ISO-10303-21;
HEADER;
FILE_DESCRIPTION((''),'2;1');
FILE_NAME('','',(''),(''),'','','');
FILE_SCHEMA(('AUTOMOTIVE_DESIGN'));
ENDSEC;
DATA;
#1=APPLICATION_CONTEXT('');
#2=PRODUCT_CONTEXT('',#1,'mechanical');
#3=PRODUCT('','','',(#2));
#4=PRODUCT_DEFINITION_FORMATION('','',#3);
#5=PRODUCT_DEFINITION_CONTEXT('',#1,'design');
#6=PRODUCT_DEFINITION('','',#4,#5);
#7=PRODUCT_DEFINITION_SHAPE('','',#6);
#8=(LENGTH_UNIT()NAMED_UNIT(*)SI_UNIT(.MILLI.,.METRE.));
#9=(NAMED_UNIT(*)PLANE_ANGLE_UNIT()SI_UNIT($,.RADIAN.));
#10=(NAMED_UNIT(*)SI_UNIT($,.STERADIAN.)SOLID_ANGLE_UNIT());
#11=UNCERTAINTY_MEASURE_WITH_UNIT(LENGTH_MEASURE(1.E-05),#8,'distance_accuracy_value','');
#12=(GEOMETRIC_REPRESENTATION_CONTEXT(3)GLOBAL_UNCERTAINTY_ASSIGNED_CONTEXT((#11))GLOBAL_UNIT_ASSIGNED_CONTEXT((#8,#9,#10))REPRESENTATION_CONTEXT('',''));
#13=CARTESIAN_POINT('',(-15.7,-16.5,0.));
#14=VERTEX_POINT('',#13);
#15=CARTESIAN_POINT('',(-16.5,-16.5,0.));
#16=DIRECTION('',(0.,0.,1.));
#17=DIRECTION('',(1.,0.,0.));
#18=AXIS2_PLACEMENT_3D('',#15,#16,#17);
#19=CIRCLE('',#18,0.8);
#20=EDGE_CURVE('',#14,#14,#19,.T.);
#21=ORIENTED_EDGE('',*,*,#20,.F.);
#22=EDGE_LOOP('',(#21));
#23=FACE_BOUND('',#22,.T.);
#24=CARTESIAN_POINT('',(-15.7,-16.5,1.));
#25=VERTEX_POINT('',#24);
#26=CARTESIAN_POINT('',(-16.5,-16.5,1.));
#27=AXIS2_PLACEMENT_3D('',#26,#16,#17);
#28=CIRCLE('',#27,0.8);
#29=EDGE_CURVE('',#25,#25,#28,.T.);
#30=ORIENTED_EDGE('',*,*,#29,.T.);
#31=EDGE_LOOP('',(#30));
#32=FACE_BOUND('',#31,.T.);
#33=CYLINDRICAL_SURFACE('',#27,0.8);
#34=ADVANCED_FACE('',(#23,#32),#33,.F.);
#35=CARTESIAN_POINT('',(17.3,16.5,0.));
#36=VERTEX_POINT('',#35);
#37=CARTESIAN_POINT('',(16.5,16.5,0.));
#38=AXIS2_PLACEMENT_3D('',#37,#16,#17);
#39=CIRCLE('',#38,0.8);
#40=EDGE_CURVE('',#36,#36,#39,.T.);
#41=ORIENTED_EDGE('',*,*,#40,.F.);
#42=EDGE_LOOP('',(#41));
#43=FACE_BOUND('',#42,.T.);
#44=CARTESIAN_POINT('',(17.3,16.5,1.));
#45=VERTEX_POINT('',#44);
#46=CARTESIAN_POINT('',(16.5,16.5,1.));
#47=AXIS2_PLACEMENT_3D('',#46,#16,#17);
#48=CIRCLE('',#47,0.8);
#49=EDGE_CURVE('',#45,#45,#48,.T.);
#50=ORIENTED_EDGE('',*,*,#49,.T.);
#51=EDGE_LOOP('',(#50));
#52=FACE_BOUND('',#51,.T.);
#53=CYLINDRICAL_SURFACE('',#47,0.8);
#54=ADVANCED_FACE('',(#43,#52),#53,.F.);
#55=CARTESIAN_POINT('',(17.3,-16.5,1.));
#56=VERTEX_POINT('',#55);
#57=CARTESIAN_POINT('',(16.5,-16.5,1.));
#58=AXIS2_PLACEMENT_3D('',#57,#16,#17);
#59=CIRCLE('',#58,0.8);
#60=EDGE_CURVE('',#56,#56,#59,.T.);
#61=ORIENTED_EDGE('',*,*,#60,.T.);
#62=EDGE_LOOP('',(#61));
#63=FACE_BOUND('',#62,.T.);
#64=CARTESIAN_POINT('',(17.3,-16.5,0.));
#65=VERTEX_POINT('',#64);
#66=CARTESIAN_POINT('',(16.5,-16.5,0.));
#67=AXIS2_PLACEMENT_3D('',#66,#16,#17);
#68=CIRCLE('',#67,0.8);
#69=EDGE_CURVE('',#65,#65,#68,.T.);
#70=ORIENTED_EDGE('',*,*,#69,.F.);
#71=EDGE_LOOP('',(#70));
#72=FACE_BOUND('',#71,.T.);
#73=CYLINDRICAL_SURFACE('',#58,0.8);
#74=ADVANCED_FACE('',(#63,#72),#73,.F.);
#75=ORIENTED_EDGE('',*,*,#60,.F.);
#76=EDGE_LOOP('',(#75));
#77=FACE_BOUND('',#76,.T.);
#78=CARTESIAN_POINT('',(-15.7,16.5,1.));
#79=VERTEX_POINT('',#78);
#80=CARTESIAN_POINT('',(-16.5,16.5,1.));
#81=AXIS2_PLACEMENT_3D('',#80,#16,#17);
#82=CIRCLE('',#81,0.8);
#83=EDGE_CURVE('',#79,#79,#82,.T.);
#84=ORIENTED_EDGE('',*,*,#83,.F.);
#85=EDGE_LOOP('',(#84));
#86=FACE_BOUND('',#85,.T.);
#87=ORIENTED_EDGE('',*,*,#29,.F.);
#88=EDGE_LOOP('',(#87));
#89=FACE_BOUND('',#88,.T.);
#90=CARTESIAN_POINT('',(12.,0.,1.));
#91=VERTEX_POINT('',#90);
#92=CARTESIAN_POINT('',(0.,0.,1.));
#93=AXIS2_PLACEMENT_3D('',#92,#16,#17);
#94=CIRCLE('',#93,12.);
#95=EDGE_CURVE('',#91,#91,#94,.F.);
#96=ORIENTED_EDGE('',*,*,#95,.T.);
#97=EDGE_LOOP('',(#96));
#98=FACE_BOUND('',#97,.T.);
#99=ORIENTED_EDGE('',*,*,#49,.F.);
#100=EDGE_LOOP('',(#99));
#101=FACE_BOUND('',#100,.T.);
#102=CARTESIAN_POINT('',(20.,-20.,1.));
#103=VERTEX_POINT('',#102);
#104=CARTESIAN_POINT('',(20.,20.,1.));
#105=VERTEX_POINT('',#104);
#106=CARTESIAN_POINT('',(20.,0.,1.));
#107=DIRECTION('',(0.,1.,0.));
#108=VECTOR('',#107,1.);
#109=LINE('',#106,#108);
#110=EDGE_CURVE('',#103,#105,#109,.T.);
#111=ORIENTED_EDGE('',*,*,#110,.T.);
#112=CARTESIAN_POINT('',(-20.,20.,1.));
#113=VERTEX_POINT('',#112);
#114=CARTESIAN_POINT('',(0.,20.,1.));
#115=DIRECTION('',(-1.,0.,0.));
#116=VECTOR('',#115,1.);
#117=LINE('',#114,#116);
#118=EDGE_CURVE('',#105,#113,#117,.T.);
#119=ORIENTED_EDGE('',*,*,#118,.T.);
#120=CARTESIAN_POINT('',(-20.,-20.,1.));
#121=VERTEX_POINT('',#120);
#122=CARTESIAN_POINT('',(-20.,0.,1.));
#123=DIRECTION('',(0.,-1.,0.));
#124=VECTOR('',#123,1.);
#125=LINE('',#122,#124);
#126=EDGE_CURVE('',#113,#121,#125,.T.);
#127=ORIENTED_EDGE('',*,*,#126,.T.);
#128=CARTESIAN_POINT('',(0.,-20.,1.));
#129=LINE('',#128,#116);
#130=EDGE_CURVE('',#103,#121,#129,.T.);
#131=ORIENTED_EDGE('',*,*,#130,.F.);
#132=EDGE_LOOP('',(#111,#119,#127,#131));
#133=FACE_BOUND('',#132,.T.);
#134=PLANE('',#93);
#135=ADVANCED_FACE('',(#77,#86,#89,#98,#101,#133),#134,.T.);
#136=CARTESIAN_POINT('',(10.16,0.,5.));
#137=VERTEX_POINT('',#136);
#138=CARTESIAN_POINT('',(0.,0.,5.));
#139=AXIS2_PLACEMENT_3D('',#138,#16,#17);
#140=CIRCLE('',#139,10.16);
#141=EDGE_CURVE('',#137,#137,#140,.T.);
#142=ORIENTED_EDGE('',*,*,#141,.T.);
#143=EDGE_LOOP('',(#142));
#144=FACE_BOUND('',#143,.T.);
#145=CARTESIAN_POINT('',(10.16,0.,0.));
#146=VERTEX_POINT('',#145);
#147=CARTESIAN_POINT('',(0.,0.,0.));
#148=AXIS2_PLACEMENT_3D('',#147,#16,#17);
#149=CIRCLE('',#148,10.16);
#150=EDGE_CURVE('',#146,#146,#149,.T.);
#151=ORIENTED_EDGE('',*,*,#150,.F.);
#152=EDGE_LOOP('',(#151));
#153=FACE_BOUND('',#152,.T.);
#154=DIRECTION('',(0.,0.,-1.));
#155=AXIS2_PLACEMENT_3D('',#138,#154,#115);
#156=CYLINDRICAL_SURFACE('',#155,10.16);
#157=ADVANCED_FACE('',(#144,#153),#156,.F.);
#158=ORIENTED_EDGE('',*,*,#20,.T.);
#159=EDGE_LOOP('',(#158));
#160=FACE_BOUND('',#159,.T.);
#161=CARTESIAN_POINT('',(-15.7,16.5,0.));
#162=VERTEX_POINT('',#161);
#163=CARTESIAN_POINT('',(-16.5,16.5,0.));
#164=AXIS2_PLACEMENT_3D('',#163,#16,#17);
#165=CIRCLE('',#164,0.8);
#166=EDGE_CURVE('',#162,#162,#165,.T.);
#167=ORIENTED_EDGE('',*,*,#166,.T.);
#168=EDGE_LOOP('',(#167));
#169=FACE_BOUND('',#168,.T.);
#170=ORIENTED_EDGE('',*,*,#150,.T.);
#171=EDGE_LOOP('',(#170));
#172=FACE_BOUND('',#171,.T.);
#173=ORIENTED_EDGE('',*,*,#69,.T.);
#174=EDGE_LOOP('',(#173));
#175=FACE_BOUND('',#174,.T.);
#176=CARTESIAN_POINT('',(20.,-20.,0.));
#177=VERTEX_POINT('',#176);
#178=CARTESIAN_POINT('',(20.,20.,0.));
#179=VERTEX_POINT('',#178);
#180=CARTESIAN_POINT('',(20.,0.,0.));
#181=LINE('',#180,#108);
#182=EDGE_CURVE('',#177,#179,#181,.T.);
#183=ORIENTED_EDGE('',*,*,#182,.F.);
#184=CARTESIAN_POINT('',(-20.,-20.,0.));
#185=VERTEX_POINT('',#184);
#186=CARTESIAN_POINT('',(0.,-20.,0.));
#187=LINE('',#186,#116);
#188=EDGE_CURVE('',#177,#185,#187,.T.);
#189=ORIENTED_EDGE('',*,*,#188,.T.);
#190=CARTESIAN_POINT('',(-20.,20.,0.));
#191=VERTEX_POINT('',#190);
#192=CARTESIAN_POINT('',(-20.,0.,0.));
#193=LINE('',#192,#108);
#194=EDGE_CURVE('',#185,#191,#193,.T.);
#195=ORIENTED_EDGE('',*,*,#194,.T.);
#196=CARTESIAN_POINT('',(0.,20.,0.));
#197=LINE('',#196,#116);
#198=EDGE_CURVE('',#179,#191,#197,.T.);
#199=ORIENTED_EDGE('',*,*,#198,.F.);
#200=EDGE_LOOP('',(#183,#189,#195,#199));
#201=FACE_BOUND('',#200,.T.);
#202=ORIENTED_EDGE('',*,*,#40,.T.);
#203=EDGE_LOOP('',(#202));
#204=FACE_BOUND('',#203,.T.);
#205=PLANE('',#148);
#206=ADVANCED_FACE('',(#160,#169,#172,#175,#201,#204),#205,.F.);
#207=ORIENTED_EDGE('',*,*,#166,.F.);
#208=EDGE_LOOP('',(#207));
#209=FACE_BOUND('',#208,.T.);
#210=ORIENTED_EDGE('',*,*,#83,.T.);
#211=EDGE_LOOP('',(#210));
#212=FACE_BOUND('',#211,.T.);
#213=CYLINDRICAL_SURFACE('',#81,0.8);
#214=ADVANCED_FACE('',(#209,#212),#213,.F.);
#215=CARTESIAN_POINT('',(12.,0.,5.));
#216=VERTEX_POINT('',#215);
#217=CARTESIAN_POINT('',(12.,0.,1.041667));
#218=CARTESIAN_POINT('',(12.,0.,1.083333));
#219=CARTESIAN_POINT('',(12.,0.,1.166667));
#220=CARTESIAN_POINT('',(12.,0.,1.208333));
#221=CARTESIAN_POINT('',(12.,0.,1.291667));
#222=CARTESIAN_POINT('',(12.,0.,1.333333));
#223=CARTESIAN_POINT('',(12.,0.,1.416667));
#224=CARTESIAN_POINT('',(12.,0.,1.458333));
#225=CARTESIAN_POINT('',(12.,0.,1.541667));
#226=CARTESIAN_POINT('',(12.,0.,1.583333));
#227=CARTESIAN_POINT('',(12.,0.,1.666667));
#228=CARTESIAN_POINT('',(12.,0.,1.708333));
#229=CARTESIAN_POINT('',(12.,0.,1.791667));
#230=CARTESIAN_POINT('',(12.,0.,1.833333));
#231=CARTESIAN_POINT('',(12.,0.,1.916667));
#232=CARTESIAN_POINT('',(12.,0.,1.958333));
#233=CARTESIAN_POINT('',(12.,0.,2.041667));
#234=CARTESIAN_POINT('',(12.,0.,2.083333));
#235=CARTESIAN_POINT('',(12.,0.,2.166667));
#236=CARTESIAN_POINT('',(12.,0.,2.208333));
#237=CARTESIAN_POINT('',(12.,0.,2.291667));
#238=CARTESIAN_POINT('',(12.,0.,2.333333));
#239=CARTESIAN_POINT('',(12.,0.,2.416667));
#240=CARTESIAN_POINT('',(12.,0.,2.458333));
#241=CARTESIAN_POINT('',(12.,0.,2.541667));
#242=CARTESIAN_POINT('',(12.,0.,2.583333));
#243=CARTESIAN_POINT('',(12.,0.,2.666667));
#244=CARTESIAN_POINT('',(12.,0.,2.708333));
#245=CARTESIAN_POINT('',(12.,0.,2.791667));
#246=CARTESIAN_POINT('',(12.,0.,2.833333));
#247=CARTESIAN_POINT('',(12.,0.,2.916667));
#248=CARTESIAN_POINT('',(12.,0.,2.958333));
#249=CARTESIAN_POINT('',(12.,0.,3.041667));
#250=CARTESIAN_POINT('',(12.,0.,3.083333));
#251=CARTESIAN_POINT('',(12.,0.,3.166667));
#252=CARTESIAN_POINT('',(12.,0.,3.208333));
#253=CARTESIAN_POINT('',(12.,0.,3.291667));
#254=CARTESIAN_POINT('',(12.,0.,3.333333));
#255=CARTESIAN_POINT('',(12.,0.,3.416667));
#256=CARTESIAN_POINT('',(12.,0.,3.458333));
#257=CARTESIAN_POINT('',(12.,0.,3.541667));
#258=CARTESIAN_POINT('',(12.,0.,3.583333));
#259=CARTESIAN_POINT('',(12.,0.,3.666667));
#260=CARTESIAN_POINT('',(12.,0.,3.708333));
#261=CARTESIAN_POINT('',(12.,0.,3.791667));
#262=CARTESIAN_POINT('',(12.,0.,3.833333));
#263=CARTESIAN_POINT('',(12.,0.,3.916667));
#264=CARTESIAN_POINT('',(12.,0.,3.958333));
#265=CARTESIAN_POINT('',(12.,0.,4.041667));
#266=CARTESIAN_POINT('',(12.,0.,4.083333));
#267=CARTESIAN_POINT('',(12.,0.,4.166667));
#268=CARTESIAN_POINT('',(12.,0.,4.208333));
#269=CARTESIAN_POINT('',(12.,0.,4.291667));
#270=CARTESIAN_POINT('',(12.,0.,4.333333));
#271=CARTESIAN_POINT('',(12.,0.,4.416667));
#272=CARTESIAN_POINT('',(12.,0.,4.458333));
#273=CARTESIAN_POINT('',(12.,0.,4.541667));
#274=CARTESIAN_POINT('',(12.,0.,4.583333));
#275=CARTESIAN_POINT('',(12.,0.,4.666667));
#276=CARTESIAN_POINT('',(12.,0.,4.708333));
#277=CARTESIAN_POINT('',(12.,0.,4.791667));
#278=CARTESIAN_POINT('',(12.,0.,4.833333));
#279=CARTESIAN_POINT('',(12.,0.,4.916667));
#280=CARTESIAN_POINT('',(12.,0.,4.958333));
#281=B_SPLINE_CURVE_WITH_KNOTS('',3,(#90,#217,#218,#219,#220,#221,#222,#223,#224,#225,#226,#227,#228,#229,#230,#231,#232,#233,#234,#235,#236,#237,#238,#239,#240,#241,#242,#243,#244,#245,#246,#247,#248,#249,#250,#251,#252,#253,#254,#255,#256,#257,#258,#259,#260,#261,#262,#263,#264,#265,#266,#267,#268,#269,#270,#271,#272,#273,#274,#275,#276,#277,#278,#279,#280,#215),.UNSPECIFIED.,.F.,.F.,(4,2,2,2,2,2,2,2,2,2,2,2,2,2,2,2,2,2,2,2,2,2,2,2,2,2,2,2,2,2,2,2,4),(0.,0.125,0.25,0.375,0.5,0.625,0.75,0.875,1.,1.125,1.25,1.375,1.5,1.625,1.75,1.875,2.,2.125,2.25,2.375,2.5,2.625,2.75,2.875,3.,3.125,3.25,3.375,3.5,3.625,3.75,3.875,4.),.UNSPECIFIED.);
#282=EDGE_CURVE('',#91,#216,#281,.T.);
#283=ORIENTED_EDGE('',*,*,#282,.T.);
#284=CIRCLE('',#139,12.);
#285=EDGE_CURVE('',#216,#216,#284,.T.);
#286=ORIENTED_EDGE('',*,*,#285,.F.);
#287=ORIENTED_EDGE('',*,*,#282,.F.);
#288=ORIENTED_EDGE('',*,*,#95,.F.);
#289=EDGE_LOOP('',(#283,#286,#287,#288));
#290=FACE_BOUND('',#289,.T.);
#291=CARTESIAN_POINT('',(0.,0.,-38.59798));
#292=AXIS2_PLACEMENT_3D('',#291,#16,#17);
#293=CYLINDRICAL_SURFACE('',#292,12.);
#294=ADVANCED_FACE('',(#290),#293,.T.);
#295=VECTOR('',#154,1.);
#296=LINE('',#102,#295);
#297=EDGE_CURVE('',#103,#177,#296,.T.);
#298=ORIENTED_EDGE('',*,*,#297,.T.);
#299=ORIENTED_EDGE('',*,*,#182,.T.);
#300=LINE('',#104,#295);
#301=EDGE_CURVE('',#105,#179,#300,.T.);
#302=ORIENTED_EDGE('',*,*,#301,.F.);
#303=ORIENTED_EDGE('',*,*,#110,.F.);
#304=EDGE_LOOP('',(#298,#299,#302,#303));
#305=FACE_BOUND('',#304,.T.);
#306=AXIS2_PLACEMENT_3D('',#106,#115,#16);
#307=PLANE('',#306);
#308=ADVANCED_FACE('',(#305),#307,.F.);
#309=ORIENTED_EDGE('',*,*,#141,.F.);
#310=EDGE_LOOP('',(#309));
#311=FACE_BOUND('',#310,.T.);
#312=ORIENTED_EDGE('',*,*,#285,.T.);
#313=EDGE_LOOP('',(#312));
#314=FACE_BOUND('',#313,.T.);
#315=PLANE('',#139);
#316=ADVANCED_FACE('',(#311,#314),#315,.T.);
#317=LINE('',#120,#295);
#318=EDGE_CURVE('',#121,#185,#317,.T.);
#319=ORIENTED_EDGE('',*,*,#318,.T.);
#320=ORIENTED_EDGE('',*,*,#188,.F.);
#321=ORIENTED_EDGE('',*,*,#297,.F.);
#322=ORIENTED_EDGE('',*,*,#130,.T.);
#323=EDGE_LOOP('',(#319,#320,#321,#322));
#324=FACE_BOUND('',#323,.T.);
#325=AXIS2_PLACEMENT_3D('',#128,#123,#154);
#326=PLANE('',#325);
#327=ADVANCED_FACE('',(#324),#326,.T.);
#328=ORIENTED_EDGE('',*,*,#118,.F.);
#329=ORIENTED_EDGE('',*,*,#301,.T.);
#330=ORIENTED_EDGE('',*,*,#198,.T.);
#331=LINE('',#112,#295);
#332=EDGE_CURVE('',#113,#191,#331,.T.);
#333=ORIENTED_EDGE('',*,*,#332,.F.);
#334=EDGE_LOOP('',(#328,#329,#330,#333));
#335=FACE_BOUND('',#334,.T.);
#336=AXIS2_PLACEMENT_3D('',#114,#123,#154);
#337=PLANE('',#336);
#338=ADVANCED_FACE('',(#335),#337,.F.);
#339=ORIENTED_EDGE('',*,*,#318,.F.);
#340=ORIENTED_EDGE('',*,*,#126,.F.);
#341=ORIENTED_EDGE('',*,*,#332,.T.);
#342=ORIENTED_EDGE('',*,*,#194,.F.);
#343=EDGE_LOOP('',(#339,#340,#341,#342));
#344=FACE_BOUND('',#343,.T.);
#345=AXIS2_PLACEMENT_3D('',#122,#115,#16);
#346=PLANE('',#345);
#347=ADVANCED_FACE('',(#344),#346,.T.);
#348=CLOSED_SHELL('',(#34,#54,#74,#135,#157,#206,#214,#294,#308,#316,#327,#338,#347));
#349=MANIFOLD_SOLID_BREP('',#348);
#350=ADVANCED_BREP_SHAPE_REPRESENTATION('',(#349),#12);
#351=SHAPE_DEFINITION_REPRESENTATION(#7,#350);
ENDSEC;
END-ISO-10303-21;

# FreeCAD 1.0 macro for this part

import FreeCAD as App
import Part
import Sketcher

doc = App.newDocument("Part")
body = doc.addObject("PartDesign::Body", "Body")

sketch1 = doc.addObject("Sketcher::SketchObject", "Sketch")
body.addObject(sketch1)
sketch1.AttachmentSupport = (doc.XY_Plane, [""])
sketch1.MapMode = "FlatFace"
sketch1.addGeometry(Part.Circle(App.Vector(0, 0, 0), App.Vector(0, 0, 1), 14), False)
sketch1.addGeometry(Part.Circle(App.Vector(0, 0, 0), App.Vector(0, 0, 1), 10.16), False)
sketch1.addConstraint(Sketcher.Constraint("Coincident", 0, 3, -1, 1))
sketch1.addConstraint(Sketcher.Constraint("Coincident", 1, 3, -1, 1))
sketch1.addConstraint(Sketcher.Constraint("Diameter", 0, 28.0))
sketch1.addConstraint(Sketcher.Constraint("Diameter", 1, 20.32))
pad1 = doc.addObject("PartDesign::Pad", "Pad")
body.addObject(pad1)
pad1.Profile = sketch1
pad1.Length = 5

sketch2 = doc.addObject("Sketcher::SketchObject", "Sketch001")
body.addObject(sketch2)
sketch2.AttachmentSupport = (doc.XY_Plane, [""])
sketch2.MapMode = "FlatFace"
sketch2.addGeometry(Part.LineSegment(App.Vector(-20, -20, 0), App.Vector(20, -20, 0)), False)
sketch2.addGeometry(Part.LineSegment(App.Vector(20, -20, 0), App.Vector(20, 20, 0)), False)
sketch2.addGeometry(Part.LineSegment(App.Vector(20, 20, 0), App.Vector(-20, 20, 0)), False)
sketch2.addGeometry(Part.LineSegment(App.Vector(-20, 20, 0), App.Vector(-20, -20, 0)), False)
sketch2.addGeometry(Part.Circle(App.Vector(0, 0, 0), App.Vector(0, 0, 1), 14), False)
sketch2.addConstraint(Sketcher.Constraint("Coincident", 0, 2, 1, 1))
sketch2.addConstraint(Sketcher.Constraint("Coincident", 1, 2, 2, 1))
sketch2.addConstraint(Sketcher.Constraint("Coincident", 2, 2, 3, 1))
sketch2.addConstraint(Sketcher.Constraint("Coincident", 3, 2, 0, 1))
sketch2.addConstraint(Sketcher.Constraint("Horizontal", 0))
sketch2.addConstraint(Sketcher.Constraint("Vertical", 1))
sketch2.addConstraint(Sketcher.Constraint("Horizontal", 2))
sketch2.addConstraint(Sketcher.Constraint("Vertical", 3))
sketch2.addConstraint(Sketcher.Constraint("Coincident", 4, 3, -1, 1))
sketch2.addConstraint(Sketcher.Constraint("Symmetric", 0, 2, 2, 2, -1, 1))
sketch2.addConstraint(Sketcher.Constraint("Equal", 2, 1))
sketch2.addConstraint(Sketcher.Constraint("Diameter", 4, 28.0))
sketch2.addConstraint(Sketcher.Constraint("DistanceX", 0, 1, 0, 2, 40.0))
pad2 = doc.addObject("PartDesign::Pad", "Pad001")
body.addObject(pad2)
pad2.Profile = sketch2
pad2.Length = 1

sketch3 = doc.addObject("Sketcher::SketchObject", "Sketch002")
body.addObject(sketch3)
sketch3.AttachmentSupport = (doc.XY_Plane, [""])
sketch3.MapMode = "FlatFace"
sketch3.AttachmentOffset = App.Placement(App.Vector(0, 0, 1), App.Rotation())
sketch3.addGeometry(Part.Circle(App.Vector(0, 0, 0), App.Vector(0, 0, 1), 14), False)
sketch3.addGeometry(Part.Circle(App.Vector(0, 0, 0), App.Vector(0, 0, 1), 12), False)
sketch3.addConstraint(Sketcher.Constraint("Coincident", 0, 3, -1, 1))
sketch3.addConstraint(Sketcher.Constraint("Coincident", 1, 3, -1, 1))
sketch3.addConstraint(Sketcher.Constraint("Diameter", 0, 28.0))
sketch3.addConstraint(Sketcher.Constraint("Diameter", 1, 24.0))
pocket1 = doc.addObject("PartDesign::Pocket", "Pocket")
body.addObject(pocket1)
pocket1.Profile = sketch3
pocket1.Length = 4
pocket1.Reversed = True

sketch4 = doc.addObject("Sketcher::SketchObject", "Sketch003")
body.addObject(sketch4)
sketch4.AttachmentSupport = (doc.XY_Plane, [""])
sketch4.MapMode = "FlatFace"
sketch4.AttachmentOffset = App.Placement(App.Vector(0, 0, 1), App.Rotation())
sketch4.addGeometry(Part.LineSegment(App.Vector(-20, 20, 0), App.Vector(-20, -20, 0)), False)
sketch4.addGeometry(Part.LineSegment(App.Vector(-20, -20, 0), App.Vector(-19, -20, 0)), False)
sketch4.addGeometry(Part.LineSegment(App.Vector(-19, -20, 0), App.Vector(-19, 20, 0)), False)
sketch4.addGeometry(Part.LineSegment(App.Vector(-19, 20, 0), App.Vector(-20, 20, 0)), False)
sketch4.addConstraint(Sketcher.Constraint("Coincident", 0, 2, 1, 1))
sketch4.addConstraint(Sketcher.Constraint("Coincident", 1, 2, 2, 1))
sketch4.addConstraint(Sketcher.Constraint("Coincident", 2, 2, 3, 1))
sketch4.addConstraint(Sketcher.Constraint("Coincident", 3, 2, 0, 1))
sketch4.addConstraint(Sketcher.Constraint("Vertical", 0))
sketch4.addConstraint(Sketcher.Constraint("Horizontal", 1))
sketch4.addConstraint(Sketcher.Constraint("Vertical", 2))
sketch4.addConstraint(Sketcher.Constraint("Horizontal", 3))
sketch4.addConstraint(Sketcher.Constraint("DistanceX", 1, 1, 1, 2, 1.0))
sketch4.addConstraint(Sketcher.Constraint("DistanceY", 0, 2, 0, 1, 40.0))
sketch4.addConstraint(Sketcher.Constraint("DistanceX", 0, 2, -1, 1, 20.0))
sketch4.addConstraint(Sketcher.Constraint("DistanceY", 0, 2, -1, 1, 20.0))
pad3 = doc.addObject("PartDesign::Pad", "Pad002")
body.addObject(pad3)
pad3.Profile = sketch4
pad3.Length = 50

sketch5 = doc.addObject("Sketcher::SketchObject", "Sketch004")
body.addObject(sketch5)
sketch5.AttachmentSupport = (doc.XY_Plane, [""])
sketch5.MapMode = "FlatFace"
sketch5.AttachmentOffset = App.Placement(App.Vector(0, 0, 51), App.Rotation())
sketch5.addGeometry(Part.LineSegment(App.Vector(-17, 5, 0), App.Vector(-19, 4, 0)), False)
sketch5.addGeometry(Part.LineSegment(App.Vector(-19, 4, 0), App.Vector(-19, -4, 0)), False)
sketch5.addGeometry(Part.LineSegment(App.Vector(-19, -4, 0), App.Vector(-17, -5, 0)), False)
sketch5.addGeometry(Part.LineSegment(App.Vector(-17, -5, 0), App.Vector(-17, 5, 0)), False)
sketch5.addConstraint(Sketcher.Constraint("Coincident", 0, 2, 1, 1))
sketch5.addConstraint(Sketcher.Constraint("Coincident", 1, 2, 2, 1))
sketch5.addConstraint(Sketcher.Constraint("Coincident", 2, 2, 3, 1))
sketch5.addConstraint(Sketcher.Constraint("Coincident", 3, 2, 0, 1))
sketch5.addConstraint(Sketcher.Constraint("Vertical", 1))
sketch5.addConstraint(Sketcher.Constraint("Vertical", 3))
sketch5.addConstraint(Sketcher.Constraint("Equal", 0, 2))
sketch5.addConstraint(Sketcher.Constraint("DistanceY", 1, 2, 1, 1, 8.0))
sketch5.addConstraint(Sketcher.Constraint("DistanceY", 3, 1, 3, 2, 10.0))
sketch5.addConstraint(Sketcher.Constraint("DistanceX", 0, 2, -1, 1, 19.0))
sketch5.addConstraint(Sketcher.Constraint("DistanceY", -1, 1, 0, 2, 4.0))
sketch5.addConstraint(Sketcher.Constraint("DistanceX", 2, 2, -1, 1, 17.0))
pad4 = doc.addObject("PartDesign::Pad", "Pad003")
body.addObject(pad4)
pad4.Profile = sketch5
pad4.Length = 50
pad4.Reversed = True

sketch6 = doc.addObject("Sketcher::SketchObject", "Sketch005")
body.addObject(sketch6)
sketch6.AttachmentSupport = (doc.YZ_Plane, [""])
sketch6.MapMode = "FlatFace"
sketch6.AttachmentOffset = App.Placement(App.Vector(0, 0, -17), App.Rotation())
sketch6.addGeometry(Part.LineSegment(App.Vector(-20, 51, 0), App.Vector(-20, 1, 0)), False)
sketch6.addGeometry(Part.LineSegment(App.Vector(-20, 1, 0), App.Vector(20, 1, 0)), False)
sketch6.addGeometry(Part.LineSegment(App.Vector(20, 1, 0), App.Vector(20, 51, 0)), False)
sketch6.addGeometry(Part.LineSegment(App.Vector(20, 51, 0), App.Vector(-20, 51, 0)), False)
sketch6.addConstraint(Sketcher.Constraint("Coincident", 0, 2, 1, 1))
sketch6.addConstraint(Sketcher.Constraint("Coincident", 1, 2, 2, 1))
sketch6.addConstraint(Sketcher.Constraint("Coincident", 2, 2, 3, 1))
sketch6.addConstraint(Sketcher.Constraint("Coincident", 3, 2, 0, 1))
sketch6.addConstraint(Sketcher.Constraint("Vertical", 0))
sketch6.addConstraint(Sketcher.Constraint("Horizontal", 1))
sketch6.addConstraint(Sketcher.Constraint("Vertical", 2))
sketch6.addConstraint(Sketcher.Constraint("Horizontal", 3))
sketch6.addConstraint(Sketcher.Constraint("DistanceX", 1, 1, 1, 2, 40.0))
sketch6.addConstraint(Sketcher.Constraint("DistanceY", 0, 2, 0, 1, 50.0))
sketch6.addConstraint(Sketcher.Constraint("DistanceX", 0, 2, -1, 1, 20.0))
sketch6.addConstraint(Sketcher.Constraint("DistanceY", -1, 1, 0, 2, 1.0))
pocket2 = doc.addObject("PartDesign::Pocket", "Pocket001")
body.addObject(pocket2)
pocket2.Profile = sketch6
pocket2.Length = 22

sketch7 = doc.addObject("Sketcher::SketchObject", "Sketch006")
body.addObject(sketch7)
sketch7.AttachmentSupport = (doc.XY_Plane, [""])
sketch7.MapMode = "FlatFace"
sketch7.AttachmentOffset = App.Placement(App.Vector(0, 0, 1), App.Rotation())
sketch7.addGeometry(Part.Circle(App.Vector(-16.5, -16.5, 0), App.Vector(0, 0, 1), 0.8), False)
sketch7.addGeometry(Part.Circle(App.Vector(-16.5, 16.5, 0), App.Vector(0, 0, 1), 0.8), False)
sketch7.addGeometry(Part.Circle(App.Vector(16.5, 16.5, 0), App.Vector(0, 0, 1), 0.8), False)
sketch7.addGeometry(Part.Circle(App.Vector(16.5, -16.5, 0), App.Vector(0, 0, 1), 0.8), False)
sketch7.addConstraint(Sketcher.Constraint("Equal", 0, 1))
sketch7.addConstraint(Sketcher.Constraint("Equal", 1, 2))
sketch7.addConstraint(Sketcher.Constraint("Equal", 2, 3))
sketch7.addConstraint(Sketcher.Constraint("Symmetric", 0, 3, 2, 3, -1, 1))
sketch7.addConstraint(Sketcher.Constraint("Symmetric", 1, 3, 3, 3, -1, 1))
sketch7.addConstraint(Sketcher.Constraint("Symmetric", 1, 3, 2, 3, -2))
sketch7.addConstraint(Sketcher.Constraint("Diameter", 0, 1.6))
sketch7.addConstraint(Sketcher.Constraint("DistanceY", 0, 3, 1, 3, 33.0))
sketch7.addConstraint(Sketcher.Constraint("DistanceX", 1, 3, 2, 3, 33.0))
doc.recompute()
hole = doc.addObject("PartDesign::Hole", "Hole")
body.addObject(hole)
hole.Profile = sketch7
hole.ThreadType = "None"
hole.Diameter = 1.6
hole.DepthType = "Dimension"
hole.Depth = 6
hole.DrillPoint = "Angled"
hole.DrillPointAngle = 118

doc.recompute()
